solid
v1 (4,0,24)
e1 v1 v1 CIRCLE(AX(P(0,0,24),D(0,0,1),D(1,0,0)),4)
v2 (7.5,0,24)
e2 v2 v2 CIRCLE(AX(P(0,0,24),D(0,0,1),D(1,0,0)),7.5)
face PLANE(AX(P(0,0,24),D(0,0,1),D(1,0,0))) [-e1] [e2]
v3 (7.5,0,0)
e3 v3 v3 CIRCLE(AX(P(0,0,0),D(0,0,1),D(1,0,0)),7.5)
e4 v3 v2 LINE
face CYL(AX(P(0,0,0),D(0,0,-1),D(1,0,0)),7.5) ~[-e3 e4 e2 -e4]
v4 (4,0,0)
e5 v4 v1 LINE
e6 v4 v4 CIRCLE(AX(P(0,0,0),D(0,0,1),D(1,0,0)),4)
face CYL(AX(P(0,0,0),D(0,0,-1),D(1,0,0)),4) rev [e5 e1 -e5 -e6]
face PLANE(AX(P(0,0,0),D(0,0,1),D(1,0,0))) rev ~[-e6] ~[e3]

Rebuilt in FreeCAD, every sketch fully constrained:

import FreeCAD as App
import Part
import Sketcher

doc = App.newDocument("Part")
body = doc.addObject("PartDesign::Body", "Body")

# Sketch on XY plane
sketch1 = body.newObject("Sketcher::SketchObject", "Sketch")
sketch1.AttachmentSupport = (doc.getObject("XY_Plane"), [""])
sketch1.MapMode = "FlatFace"
sketch1.addGeometry(Part.Circle(App.Vector(0, 0, 0), App.Vector(0, 0, 1), 7.5), False)
sketch1.addGeometry(Part.Circle(App.Vector(0, 0, 0), App.Vector(0, 0, 1), 4), False)
sketch1.addConstraint(Sketcher.Constraint("Coincident", 0, 3, -1, 1))
sketch1.addConstraint(Sketcher.Constraint("Coincident", 1, 3, -1, 1))
sketch1.addConstraint(Sketcher.Constraint("Diameter", 0, 15.0))
sketch1.addConstraint(Sketcher.Constraint("Diameter", 1, 8.0))
pad1 = body.newObject("PartDesign::Pad", "Pad")
pad1.Profile = sketch1
pad1.Length = 24

doc.recompute()
